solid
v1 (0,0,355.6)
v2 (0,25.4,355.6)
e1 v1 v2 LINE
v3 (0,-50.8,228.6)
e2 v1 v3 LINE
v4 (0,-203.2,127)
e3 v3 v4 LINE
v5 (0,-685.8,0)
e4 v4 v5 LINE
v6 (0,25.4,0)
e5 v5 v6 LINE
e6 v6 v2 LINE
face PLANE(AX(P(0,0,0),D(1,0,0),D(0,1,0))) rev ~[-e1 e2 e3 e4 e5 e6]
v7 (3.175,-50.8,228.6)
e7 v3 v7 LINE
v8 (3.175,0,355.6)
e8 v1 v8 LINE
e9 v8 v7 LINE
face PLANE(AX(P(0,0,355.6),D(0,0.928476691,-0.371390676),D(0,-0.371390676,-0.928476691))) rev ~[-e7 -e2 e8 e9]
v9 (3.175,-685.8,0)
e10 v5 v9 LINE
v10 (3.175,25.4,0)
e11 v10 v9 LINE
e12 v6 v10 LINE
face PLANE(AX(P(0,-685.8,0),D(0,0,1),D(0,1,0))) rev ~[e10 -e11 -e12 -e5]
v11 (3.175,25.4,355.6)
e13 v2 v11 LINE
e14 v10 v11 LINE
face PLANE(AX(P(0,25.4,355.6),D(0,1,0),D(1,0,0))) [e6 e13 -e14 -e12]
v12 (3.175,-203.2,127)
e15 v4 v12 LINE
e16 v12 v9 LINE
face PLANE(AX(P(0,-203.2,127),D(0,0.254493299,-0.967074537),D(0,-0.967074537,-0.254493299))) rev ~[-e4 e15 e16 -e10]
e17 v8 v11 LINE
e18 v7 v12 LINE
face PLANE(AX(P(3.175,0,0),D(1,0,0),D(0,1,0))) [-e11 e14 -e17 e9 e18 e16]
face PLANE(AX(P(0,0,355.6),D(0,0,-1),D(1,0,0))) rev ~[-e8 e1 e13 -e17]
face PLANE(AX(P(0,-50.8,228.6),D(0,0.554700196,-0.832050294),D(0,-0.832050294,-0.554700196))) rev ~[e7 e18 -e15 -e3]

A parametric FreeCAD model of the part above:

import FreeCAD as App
import Part
import Sketcher

V = App.Vector
Q = App.Units.Quantity

doc = App.newDocument("Part")
body = doc.addObject("PartDesign::Body", "Body")

# Sketch on YZ plane
sketch1 = doc.addObject("Sketcher::SketchObject", "Sketch")
body.addObject(sketch1)
sketch1.AttachmentSupport = (doc.YZ_Plane, [""])
sketch1.MapMode = "FlatFace"
sketch1.addGeometry(Part.LineSegment(V(-686, 0, 0), V(0, 0, 0)), False)
sketch1.addGeometry(Part.LineSegment(V(0, 0, 0), V(0, 356, 0)), False)
sketch1.addGeometry(Part.LineSegment(V(0, 356, 0), V(-51, 229, 0)), False)
sketch1.addGeometry(Part.LineSegment(V(-51, 229, 0), V(-203, 127, 0)), False)
sketch1.addGeometry(Part.LineSegment(V(-203, 127, 0), V(-686, 0, 0)), False)
sketch1.addConstraint(Sketcher.Constraint("Coincident", 0, 2, 1, 1))
sketch1.addConstraint(Sketcher.Constraint("Coincident", 1, 2, 2, 1))
sketch1.addConstraint(Sketcher.Constraint("Coincident", 2, 2, 3, 1))
sketch1.addConstraint(Sketcher.Constraint("Coincident", 3, 2, 4, 1))
sketch1.addConstraint(Sketcher.Constraint("Coincident", 4, 2, 0, 1))
sketch1.addConstraint(Sketcher.Constraint("Horizontal", 0))
sketch1.addConstraint(Sketcher.Constraint("Vertical", 1))
sketch1.addConstraint(Sketcher.Constraint("Coincident", 0, 2, -1, 1))
sketch1.addConstraint(Sketcher.Constraint("DistanceX", 0, 1, 0, 2, Q("27 in")))
sketch1.addConstraint(Sketcher.Constraint("DistanceY", 1, 1, 1, 2, Q("14 in")))
sketch1.addConstraint(Sketcher.Constraint("DistanceX", 2, 2, -1, 1, Q("2 in")))
sketch1.addConstraint(Sketcher.Constraint("DistanceX", 3, 2, -1, 1, Q("8 in")))
sketch1.addConstraint(Sketcher.Constraint("DistanceY", -1, 1, 3, 2, Q("5 in")))
sketch1.addConstraint(Sketcher.Constraint("DistanceY", 2, 2, 1, 2, Q("5 in")))
pad1 = doc.addObject("PartDesign::Pad", "Pad")
body.addObject(pad1)
pad1.Profile = sketch1
pad1.Length = Q("0.125 in")

# Sketch on XZ plane
sketch2 = doc.addObject("Sketcher::SketchObject", "Sketch001")
body.addObject(sketch2)
sketch2.AttachmentSupport = (doc.XZ_Plane, [""])
sketch2.MapMode = "FlatFace"
sketch2.addGeometry(Part.LineSegment(V(3.2, 0, 0), V(0, 0, 0)), False)
sketch2.addGeometry(Part.LineSegment(V(0, 0, 0), V(0, 355.6, 0)), False)
sketch2.addGeometry(Part.LineSegment(V(0, 355.6, 0), V(3.2, 355.6, 0)), False)
sketch2.addGeometry(Part.LineSegment(V(3.2, 355.6, 0), V(3.2, 0, 0)), False)
sketch2.addConstraint(Sketcher.Constraint("Coincident", 0, 2, 1, 1))
sketch2.addConstraint(Sketcher.Constraint("Coincident", 1, 2, 2, 1))
sketch2.addConstraint(Sketcher.Constraint("Coincident", 2, 2, 3, 1))
sketch2.addConstraint(Sketcher.Constraint("Coincident", 3, 2, 0, 1))
sketch2.addConstraint(Sketcher.Constraint("Horizontal", 0))
sketch2.addConstraint(Sketcher.Constraint("Vertical", 1))
sketch2.addConstraint(Sketcher.Constraint("Horizontal", 2))
sketch2.addConstraint(Sketcher.Constraint("Vertical", 3))
sketch2.addConstraint(Sketcher.Constraint("Coincident", 0, 2, -1, 1))
sketch2.addConstraint(Sketcher.Constraint("DistanceY", 1, 1, 1, 2, Q("14 in")))
sketch2.addConstraint(Sketcher.Constraint("DistanceX", 0, 2, 0, 1, Q("0.125 in")))
pad2 = doc.addObject("PartDesign::Pad", "Pad001")
body.addObject(pad2)
pad2.Profile = sketch2
pad2.Length = Q("1 in")
pad2.Reversed = True

doc.recompute()
